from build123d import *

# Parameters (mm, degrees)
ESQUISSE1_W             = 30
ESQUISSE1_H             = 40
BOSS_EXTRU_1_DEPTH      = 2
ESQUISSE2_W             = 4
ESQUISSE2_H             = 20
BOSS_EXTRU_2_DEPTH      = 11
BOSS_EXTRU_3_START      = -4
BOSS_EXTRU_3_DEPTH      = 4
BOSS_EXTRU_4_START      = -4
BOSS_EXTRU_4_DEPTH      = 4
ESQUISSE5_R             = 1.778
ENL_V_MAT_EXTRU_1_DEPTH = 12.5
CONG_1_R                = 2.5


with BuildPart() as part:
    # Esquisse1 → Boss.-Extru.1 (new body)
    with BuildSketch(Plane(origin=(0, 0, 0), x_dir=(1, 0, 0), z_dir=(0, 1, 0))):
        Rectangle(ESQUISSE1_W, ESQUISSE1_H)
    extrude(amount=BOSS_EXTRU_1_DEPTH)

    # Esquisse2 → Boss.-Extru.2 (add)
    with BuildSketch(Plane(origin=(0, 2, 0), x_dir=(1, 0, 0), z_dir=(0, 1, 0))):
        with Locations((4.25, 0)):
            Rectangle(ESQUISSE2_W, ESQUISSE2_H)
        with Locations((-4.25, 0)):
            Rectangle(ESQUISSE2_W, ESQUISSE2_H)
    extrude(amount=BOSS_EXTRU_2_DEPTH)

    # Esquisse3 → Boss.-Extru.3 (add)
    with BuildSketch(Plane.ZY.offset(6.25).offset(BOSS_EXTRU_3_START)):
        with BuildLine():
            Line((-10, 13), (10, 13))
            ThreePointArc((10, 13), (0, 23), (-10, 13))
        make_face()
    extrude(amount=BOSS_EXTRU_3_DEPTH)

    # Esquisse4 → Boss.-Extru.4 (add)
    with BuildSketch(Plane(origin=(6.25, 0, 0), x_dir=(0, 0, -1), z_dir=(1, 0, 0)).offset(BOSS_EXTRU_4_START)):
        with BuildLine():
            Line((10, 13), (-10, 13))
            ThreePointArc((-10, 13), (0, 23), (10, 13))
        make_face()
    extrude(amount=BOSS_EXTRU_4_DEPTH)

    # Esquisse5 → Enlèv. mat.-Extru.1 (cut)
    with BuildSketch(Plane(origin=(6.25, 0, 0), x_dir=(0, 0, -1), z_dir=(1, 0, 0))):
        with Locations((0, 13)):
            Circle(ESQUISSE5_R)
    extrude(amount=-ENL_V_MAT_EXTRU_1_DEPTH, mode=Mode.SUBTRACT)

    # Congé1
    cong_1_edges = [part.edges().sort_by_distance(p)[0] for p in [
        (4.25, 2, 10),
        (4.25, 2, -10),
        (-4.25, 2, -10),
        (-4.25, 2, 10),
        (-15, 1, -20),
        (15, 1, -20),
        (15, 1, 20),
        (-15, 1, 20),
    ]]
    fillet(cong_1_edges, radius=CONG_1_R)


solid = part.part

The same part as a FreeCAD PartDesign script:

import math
import FreeCAD as App
import Part
import Sketcher

V = App.Vector


def edges_at(feature, points):
    """Names of the edges that pass closest to the given points."""
    edges = feature.Shape.Edges
    near = lambda p: min(range(len(edges)), key=lambda i: edges[i].distToShape(Part.Vertex(*p))[0])
    return sorted({f"Edge{near(p) + 1}" for p in points})


def add_polygon(sketch, points):
    """Adds a closed chain of lines whose ends are joined by coincident constraints."""
    first, n = sketch.GeometryCount, len(points)
    for a, b in zip(points, points[1:] + points[:1]):
        sketch.addGeometry(Part.LineSegment(App.Vector(*a, 0), App.Vector(*b, 0)), False)
    for i in range(n):
        sketch.addConstraint(Sketcher.Constraint("Coincident", first + i, 2, first + (i + 1) % n, 1))

doc = App.newDocument("Part")
body = doc.addObject("PartDesign::Body", "Body")

sketch1 = body.newObject("Sketcher::SketchObject", "Sketch")
sketch1.AttachmentSupport = (doc.getObject("XZ_Plane"), [""])
sketch1.MapMode = "FlatFace"
add_polygon(sketch1, [(-15, -20), (-15, 20), (15, 20), (15, -20)])
sketch1.addConstraint([
    Sketcher.Constraint("Vertical", 0),
    Sketcher.Constraint("Horizontal", 1),
    Sketcher.Constraint("Vertical", 2),
    Sketcher.Constraint("Horizontal", 3),
    Sketcher.Constraint("Symmetric", 0, 2, 2, 2, -1, 1),
    Sketcher.Constraint("DistanceX", 1, 1, 1, 2, 30.0),
    Sketcher.Constraint("DistanceY", 0, 1, 0, 2, 40.0),
])
pad1 = body.newObject("PartDesign::Pad", "Pad")
pad1.Profile = sketch1
pad1.Length = 2
pad1.Reversed = True

sketch2 = body.newObject("Sketcher::SketchObject", "Sketch001")
sketch2.AttachmentSupport = (doc.getObject("XZ_Plane"), [""])
sketch2.MapMode = "FlatFace"
sketch2.AttachmentOffset = App.Placement(V(0, 0, -2), App.Rotation())
add_polygon(sketch2, [(2.2, -10), (2.2, 10), (6.2, 10), (6.2, -10)])
add_polygon(sketch2, [(-6.2, -10), (-6.2, 10), (-2.2, 10), (-2.2, -10)])
sketch2.addConstraint([
    Sketcher.Constraint("Vertical", 0),
    Sketcher.Constraint("Horizontal", 1),
    Sketcher.Constraint("Vertical", 2),
    Sketcher.Constraint("Horizontal", 3),
    Sketcher.Constraint("Vertical", 4),
    Sketcher.Constraint("Horizontal", 5),
    Sketcher.Constraint("Vertical", 6),
    Sketcher.Constraint("Horizontal", 7),
    Sketcher.Constraint("Symmetric", 2, 2, 4, 2, -1, 1),
    Sketcher.Constraint("Symmetric", 0, 2, 6, 2, -1, 1),
    Sketcher.Constraint("Horizontal", 1, 2, 4, 2),
    Sketcher.Constraint("DistanceX", 1, 1, 1, 2, 4.0),
    Sketcher.Constraint("DistanceY", 0, 1, 0, 2, 20.0),
    Sketcher.Constraint("DistanceX", 4, 2, 0, 2, 8.5),
])
pad2 = body.newObject("PartDesign::Pad", "Pad001")
pad2.Profile = sketch2
pad2.Length = 11
pad2.Reversed = True

sketch3 = body.newObject("Sketcher::SketchObject", "Sketch002")
sketch3.AttachmentSupport = (doc.getObject("YZ_Plane"), [""])
sketch3.MapMode = "FlatFace"
sketch3.AttachmentOffset = App.Placement(V(0, 0, -2.25), App.Rotation())
sketch3.addGeometry([
    Part.LineSegment(V(13, -10, 0), V(13, 10, 0)),
    Part.ArcOfCircle(Part.Circle(V(13, 0, 0), V(0, 0, 1), 10), math.radians(-90), math.radians(90)),
], False)
sketch3.addConstraint([
    Sketcher.Constraint("Coincident", 0, 1, 1, 1),
    Sketcher.Constraint("Coincident", 1, 2, 0, 2),
    Sketcher.Constraint("Vertical", 0),
    Sketcher.Constraint("PointOnObject", 1, 3, -1),
    Sketcher.Constraint("Vertical", 1, 3, 0, 1),
    Sketcher.Constraint("Radius", 1, 10.0),
    Sketcher.Constraint("DistanceX", -1, 1, 1, 3, 13.0),
])
pad3 = body.newObject("PartDesign::Pad", "Pad002")
pad3.Profile = sketch3
pad3.Length = 4
pad3.Reversed = True

sketch4 = body.newObject("Sketcher::SketchObject", "Sketch003")
sketch4.AttachmentSupport = (doc.getObject("YZ_Plane"), [""])
sketch4.MapMode = "FlatFace"
sketch4.AttachmentOffset = App.Placement(V(0, 0, 2.25), App.Rotation())
sketch4.addGeometry([
    Part.LineSegment(V(13, 10, 0), V(13, -10, 0)),
    Part.ArcOfCircle(Part.Circle(V(13, 0, 0), V(0, 0, 1), 10), math.radians(-90), math.radians(90)),
], False)
sketch4.addConstraint([
    Sketcher.Constraint("Coincident", 0, 1, 1, 2),
    Sketcher.Constraint("Coincident", 1, 1, 0, 2),
    Sketcher.Constraint("Vertical", 0),
    Sketcher.Constraint("PointOnObject", 1, 3, -1),
    Sketcher.Constraint("Vertical", 1, 3, 0, 1),
    Sketcher.Constraint("Radius", 1, 10.0),
    Sketcher.Constraint("DistanceX", -1, 1, 1, 3, 13.0),
])
pad4 = body.newObject("PartDesign::Pad", "Pad003")
pad4.Profile = sketch4
pad4.Length = 4

sketch5 = body.newObject("Sketcher::SketchObject", "Sketch004")
sketch5.AttachmentSupport = (doc.getObject("YZ_Plane"), [""])
sketch5.MapMode = "FlatFace"
sketch5.AttachmentOffset = App.Placement(V(0, 0, 6.25), App.Rotation())
sketch5.addGeometry(Part.Circle(V(13, 0, 0), V(0, 0, 1), 1.8), False)
sketch5.addConstraint([
    Sketcher.Constraint("PointOnObject", 0, 3, -1),
    Sketcher.Constraint("Diameter", 0, 3.556),
    Sketcher.Constraint("DistanceX", -1, 1, 0, 3, 13.0),
])
pocket1 = body.newObject("PartDesign::Pocket", "Pocket")
pocket1.Profile = sketch5
pocket1.Length = 12.5
doc.recompute()

fillet = body.newObject("PartDesign::Fillet", "Fillet")
fillet.Base = (pocket1, edges_at(pocket1, [
    (4.25, 2, 10),
    (4.25, 2, -10),
    (-4.25, 2, -10),
    (-4.25, 2, 10),
    (-15, 1, -20),
    (15, 1, -20),
    (15, 1, 20),
    (-15, 1, 20),
]))
fillet.Radius = 2.5

doc.recompute()
